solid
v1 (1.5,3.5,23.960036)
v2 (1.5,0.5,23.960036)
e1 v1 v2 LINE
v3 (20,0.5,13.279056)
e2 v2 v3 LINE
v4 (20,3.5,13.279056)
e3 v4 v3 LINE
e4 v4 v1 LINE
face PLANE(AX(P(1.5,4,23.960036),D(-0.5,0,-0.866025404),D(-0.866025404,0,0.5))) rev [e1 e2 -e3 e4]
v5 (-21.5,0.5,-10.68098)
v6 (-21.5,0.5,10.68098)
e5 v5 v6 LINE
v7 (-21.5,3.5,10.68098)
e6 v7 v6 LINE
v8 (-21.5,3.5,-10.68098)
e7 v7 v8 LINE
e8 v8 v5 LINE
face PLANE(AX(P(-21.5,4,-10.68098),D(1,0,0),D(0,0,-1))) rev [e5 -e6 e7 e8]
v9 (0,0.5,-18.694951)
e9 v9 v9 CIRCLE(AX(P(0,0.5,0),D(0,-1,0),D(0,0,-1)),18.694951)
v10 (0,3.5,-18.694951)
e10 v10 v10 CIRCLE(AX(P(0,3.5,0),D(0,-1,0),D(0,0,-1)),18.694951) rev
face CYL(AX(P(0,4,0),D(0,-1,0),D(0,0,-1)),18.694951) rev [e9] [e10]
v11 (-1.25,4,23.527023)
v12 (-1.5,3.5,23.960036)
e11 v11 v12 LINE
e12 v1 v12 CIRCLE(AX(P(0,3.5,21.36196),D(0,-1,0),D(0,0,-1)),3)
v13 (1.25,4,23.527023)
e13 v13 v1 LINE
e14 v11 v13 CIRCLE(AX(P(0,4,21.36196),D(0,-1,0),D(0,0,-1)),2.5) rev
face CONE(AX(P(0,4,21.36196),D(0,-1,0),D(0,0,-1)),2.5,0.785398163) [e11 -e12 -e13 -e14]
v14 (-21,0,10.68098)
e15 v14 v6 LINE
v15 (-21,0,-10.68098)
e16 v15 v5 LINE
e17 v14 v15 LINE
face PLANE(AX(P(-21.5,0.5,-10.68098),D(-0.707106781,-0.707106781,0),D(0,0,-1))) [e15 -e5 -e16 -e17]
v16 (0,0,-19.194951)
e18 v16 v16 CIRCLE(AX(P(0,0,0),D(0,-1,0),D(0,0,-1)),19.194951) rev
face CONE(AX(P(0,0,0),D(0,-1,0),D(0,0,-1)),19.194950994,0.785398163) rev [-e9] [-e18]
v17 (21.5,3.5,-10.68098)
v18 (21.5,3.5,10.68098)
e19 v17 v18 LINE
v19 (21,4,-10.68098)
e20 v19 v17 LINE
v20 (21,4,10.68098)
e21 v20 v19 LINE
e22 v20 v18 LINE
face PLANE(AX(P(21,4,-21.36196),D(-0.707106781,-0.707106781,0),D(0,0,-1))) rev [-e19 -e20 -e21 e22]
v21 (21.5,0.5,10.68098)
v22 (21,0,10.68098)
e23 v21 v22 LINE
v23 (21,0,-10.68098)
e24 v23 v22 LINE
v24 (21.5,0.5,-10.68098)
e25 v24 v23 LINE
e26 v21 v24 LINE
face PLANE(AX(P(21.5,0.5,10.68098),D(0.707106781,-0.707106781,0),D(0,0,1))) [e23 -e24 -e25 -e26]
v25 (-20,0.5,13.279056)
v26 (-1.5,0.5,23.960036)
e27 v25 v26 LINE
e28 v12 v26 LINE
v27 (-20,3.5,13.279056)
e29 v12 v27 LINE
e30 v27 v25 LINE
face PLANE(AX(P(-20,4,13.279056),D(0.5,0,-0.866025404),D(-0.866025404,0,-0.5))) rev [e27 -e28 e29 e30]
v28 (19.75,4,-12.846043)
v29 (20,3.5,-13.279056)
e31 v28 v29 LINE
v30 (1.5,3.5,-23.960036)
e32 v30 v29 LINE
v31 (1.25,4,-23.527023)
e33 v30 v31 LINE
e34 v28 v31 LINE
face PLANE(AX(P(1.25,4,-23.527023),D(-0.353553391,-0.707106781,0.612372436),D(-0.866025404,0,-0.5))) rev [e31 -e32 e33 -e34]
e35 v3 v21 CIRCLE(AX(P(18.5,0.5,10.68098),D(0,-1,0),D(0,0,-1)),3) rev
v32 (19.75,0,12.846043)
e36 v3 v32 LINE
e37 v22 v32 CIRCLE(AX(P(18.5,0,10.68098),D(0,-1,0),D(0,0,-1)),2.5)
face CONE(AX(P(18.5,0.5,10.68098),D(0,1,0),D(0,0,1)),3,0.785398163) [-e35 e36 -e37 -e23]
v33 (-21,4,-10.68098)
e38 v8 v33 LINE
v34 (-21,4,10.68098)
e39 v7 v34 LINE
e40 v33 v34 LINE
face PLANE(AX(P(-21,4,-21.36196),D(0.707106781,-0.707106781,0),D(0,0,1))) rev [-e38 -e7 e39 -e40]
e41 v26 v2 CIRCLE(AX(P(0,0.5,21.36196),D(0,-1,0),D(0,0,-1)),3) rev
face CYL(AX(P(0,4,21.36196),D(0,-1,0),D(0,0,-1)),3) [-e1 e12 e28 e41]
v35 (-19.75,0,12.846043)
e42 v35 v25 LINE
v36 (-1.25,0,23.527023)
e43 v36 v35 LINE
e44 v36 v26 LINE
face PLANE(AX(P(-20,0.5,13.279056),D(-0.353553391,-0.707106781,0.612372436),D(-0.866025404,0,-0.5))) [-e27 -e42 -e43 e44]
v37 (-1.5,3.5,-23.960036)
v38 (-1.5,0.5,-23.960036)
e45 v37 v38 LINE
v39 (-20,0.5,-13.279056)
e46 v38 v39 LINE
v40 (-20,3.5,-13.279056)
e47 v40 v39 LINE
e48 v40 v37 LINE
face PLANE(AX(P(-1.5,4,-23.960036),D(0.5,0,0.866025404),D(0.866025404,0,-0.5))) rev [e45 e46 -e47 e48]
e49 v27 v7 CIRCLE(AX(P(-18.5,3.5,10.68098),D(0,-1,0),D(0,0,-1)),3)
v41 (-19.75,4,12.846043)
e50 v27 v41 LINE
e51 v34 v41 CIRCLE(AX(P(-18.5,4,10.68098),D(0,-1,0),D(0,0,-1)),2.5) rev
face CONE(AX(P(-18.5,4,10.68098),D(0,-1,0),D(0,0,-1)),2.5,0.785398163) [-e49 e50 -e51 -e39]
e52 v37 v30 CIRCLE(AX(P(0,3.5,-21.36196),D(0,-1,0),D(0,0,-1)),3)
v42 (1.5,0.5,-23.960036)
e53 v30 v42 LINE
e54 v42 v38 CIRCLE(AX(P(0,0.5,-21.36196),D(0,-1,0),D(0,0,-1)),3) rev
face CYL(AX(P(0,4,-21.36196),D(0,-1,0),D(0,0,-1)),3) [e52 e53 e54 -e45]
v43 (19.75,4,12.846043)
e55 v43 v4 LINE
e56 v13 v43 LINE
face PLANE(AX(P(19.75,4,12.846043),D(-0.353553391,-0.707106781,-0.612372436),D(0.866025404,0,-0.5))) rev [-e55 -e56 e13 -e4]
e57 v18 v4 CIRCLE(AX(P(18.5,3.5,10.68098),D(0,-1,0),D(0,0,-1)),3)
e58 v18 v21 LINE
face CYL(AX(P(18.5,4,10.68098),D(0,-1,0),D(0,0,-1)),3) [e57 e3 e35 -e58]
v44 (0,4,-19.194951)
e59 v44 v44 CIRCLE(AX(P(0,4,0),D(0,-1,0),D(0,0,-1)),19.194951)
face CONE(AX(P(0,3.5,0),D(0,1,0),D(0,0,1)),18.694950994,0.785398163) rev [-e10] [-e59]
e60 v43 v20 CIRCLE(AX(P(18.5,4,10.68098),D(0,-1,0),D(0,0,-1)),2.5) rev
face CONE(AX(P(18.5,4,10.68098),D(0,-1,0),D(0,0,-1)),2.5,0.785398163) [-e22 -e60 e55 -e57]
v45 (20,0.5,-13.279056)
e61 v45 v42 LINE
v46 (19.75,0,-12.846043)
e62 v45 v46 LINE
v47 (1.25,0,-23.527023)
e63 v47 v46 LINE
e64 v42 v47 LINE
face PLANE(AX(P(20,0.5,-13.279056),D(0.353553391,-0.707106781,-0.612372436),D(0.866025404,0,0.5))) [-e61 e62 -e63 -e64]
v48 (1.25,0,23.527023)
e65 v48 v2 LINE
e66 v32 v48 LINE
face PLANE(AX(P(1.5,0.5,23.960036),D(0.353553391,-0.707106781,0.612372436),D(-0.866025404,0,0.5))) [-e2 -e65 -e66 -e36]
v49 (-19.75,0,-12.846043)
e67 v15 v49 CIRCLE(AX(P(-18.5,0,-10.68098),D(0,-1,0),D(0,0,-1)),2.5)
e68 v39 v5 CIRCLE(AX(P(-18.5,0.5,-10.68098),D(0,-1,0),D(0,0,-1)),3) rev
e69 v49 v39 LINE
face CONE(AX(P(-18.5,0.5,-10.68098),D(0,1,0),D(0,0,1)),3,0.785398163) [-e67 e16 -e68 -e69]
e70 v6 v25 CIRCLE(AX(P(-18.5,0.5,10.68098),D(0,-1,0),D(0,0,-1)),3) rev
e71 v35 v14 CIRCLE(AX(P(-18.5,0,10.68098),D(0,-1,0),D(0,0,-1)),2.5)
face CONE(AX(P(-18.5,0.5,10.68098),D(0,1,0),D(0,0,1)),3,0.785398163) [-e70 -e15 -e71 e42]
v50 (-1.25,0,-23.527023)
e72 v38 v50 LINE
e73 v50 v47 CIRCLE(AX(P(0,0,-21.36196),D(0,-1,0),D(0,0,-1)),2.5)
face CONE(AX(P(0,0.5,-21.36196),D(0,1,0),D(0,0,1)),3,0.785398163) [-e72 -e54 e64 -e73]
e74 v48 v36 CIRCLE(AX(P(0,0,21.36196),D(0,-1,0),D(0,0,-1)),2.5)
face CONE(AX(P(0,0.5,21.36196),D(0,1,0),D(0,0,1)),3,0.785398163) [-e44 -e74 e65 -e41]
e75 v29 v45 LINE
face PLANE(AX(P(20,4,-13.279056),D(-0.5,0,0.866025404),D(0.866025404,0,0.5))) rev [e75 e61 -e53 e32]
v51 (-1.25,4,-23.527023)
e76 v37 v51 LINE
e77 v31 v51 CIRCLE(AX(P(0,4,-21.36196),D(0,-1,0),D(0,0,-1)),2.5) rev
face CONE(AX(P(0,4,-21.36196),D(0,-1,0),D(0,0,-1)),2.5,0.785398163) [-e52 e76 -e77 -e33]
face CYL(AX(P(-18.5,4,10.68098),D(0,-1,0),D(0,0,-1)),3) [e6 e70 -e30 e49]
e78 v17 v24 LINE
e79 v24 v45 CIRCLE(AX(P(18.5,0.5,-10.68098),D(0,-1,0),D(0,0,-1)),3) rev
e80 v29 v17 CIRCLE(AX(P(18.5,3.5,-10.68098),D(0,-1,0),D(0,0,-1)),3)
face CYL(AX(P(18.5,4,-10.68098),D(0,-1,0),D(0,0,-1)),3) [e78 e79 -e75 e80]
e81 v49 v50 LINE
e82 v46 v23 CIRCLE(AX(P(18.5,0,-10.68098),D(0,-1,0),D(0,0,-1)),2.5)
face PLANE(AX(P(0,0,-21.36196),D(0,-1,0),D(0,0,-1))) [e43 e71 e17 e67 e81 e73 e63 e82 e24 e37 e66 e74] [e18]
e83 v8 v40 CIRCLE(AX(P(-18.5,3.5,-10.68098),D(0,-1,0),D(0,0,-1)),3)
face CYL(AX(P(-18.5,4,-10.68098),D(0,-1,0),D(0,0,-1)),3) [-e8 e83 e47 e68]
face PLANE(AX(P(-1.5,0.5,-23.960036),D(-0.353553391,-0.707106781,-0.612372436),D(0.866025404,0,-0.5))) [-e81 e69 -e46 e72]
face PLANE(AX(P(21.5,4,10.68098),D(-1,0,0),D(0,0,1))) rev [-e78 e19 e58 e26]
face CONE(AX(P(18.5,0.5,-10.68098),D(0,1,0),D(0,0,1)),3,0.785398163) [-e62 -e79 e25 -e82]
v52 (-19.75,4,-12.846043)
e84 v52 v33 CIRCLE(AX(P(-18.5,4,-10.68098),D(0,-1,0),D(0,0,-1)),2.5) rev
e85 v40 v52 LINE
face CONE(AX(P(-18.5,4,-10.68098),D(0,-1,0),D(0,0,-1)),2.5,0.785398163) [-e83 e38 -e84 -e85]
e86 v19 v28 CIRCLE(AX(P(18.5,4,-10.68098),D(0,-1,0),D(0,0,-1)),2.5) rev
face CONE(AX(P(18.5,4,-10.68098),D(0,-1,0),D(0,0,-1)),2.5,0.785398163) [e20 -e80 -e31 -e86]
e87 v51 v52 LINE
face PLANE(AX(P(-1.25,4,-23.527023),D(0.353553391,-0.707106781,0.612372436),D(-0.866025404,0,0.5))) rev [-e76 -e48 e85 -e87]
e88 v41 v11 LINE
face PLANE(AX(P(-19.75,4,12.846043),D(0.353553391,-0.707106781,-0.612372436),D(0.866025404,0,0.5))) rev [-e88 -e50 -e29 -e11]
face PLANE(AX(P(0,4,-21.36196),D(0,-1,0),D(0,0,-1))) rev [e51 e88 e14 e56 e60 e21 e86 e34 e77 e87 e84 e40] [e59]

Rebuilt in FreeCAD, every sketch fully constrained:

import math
import FreeCAD as App
import Part
import Sketcher

V = App.Vector
Q = App.Units.Quantity


def edges_at(feature, points):
    """Names of the edges that pass closest to the given points."""
    edges = feature.Shape.Edges
    near = lambda p: min(range(len(edges)), key=lambda i: edges[i].distToShape(Part.Vertex(*p))[0])
    return sorted({f"Edge{near(p) + 1}" for p in points})

doc = App.newDocument("Part")
params = doc.addObject("Spreadsheet::Sheet", "Params")
for row, (alias, value) in enumerate([
    ("sketch1_radius", "3 mm"),
    ("pad1_length", "4 mm"),
    ("chamfer_size", "0.5 mm"),
], start=1):
    params.set(f"A{row}", alias)
    params.set(f"B{row}", "=" + value)
    params.setAlias(f"B{row}", alias)

body = doc.addObject("PartDesign::Body", "Body")

# Sketch on XZ plane
sketch1 = body.newObject("Sketcher::SketchObject", "Sketch")
sketch1.AttachmentSupport = (doc.getObject("XZ_Plane"), [""])
sketch1.MapMode = "FlatFace"
sketch1.addGeometry([
    Part.LineSegment(V(-1.5, -24, 0), V(-20, -13.3, 0)),  # 0
    Part.ArcOfCircle(Part.Circle(V(-18.5, -10.7, 0), V(0, 0, 1), 3), math.radians(-180), math.radians(-120)),  # 1
    Part.LineSegment(V(-21.5, -10.7, 0), V(-21.5, 10.7, 0)),  # 2
    Part.ArcOfCircle(Part.Circle(V(-18.5, 10.7, 0), V(0, 0, 1), 3), math.radians(120), math.radians(180)),  # 3
    Part.LineSegment(V(-20, 13.3, 0), V(-1.5, 24, 0)),  # 4
    Part.ArcOfCircle(Part.Circle(V(0, 21.4, 0), V(0, 0, 1), 3), math.radians(60), math.radians(120)),  # 5
    Part.LineSegment(V(1.5, 24, 0), V(20, 13.3, 0)),  # 6
    Part.ArcOfCircle(Part.Circle(V(18.5, 10.7, 0), V(0, 0, 1), 3), math.radians(0), math.radians(60)),  # 7
    Part.LineSegment(V(21.5, 10.7, 0), V(21.5, -10.7, 0)),  # 8
    Part.ArcOfCircle(Part.Circle(V(18.5, -10.7, 0), V(0, 0, 1), 3), math.radians(-60), math.radians(0)),  # 9
    Part.LineSegment(V(20, -13.3, 0), V(1.5, -24, 0)),  # 10
    Part.ArcOfCircle(Part.Circle(V(0, -21.4, 0), V(0, 0, 1), 3), math.radians(-120), math.radians(-60)),  # 11
    Part.Circle(V(0, 0, 0), V(0, 0, 1), 18.7),  # 12
], False)
sketch1.addConstraint([
    Sketcher.Constraint("Tangent", 0, 2, 1, 2),
    Sketcher.Constraint("Tangent", 1, 1, 2, 1),
    Sketcher.Constraint("Tangent", 2, 2, 3, 2),
    Sketcher.Constraint("Tangent", 3, 1, 4, 1),
    Sketcher.Constraint("Tangent", 4, 2, 5, 2),
    Sketcher.Constraint("Tangent", 5, 1, 6, 1),
    Sketcher.Constraint("Tangent", 6, 2, 7, 2),
    Sketcher.Constraint("Tangent", 7, 1, 8, 1),
    Sketcher.Constraint("Tangent", 8, 2, 9, 2),
    Sketcher.Constraint("Tangent", 9, 1, 10, 1),
    Sketcher.Constraint("Tangent", 10, 2, 11, 2),
    Sketcher.Constraint("Tangent", 11, 1, 0, 1),
    Sketcher.Constraint("Vertical", 2),
    Sketcher.Constraint("Vertical", 8),
    Sketcher.Constraint("Coincident", 12, 3, -1, 1),
    Sketcher.Constraint("Equal", 1, 3),
    Sketcher.Constraint("Equal", 3, 5),
    Sketcher.Constraint("Equal", 5, 7),
    Sketcher.Constraint("Equal", 7, 9),
    Sketcher.Constraint("Equal", 9, 11),
    Sketcher.Constraint("Symmetric", 1, 3, 7, 3, -1, 1),
    Sketcher.Constraint("Symmetric", 5, 3, 11, 3, -1, 1),
    Sketcher.Constraint("Symmetric", 4, 2, 5, 1, -2),
    Sketcher.Constraint("Parallel", 4, 10),
    Sketcher.Constraint("Radius", 1, 3.0),
    Sketcher.Constraint("Angle", 0, Q("150 deg")),
    Sketcher.Constraint("DistanceX", 0, 2, -1, 1, 20.0),
    Sketcher.Constraint("Diameter", 12, 37.389902),
    Sketcher.Constraint("DistanceY", 2, 1, 2, 2, 21.36196),
])
sketch1.setExpression("Constraints[24]", "Params.sketch1_radius")
pad1 = body.newObject("PartDesign::Pad", "Pad")
pad1.Profile = sketch1
pad1.setExpression("Length", "Params.pad1_length")
pad1.Reversed = True
doc.recompute()

chamfer = body.newObject("PartDesign::Chamfer", "Chamfer")
chamfer.Base = (pad1, edges_at(pad1, [
    (-21.098, 4, -12.181),
    (10.75, 0, -18.62),
    (21.098, 0, -12.181),
    (21.5, 0, 0),
    (21.098, 0, 12.181),
    (10.75, 0, 18.62),
    (0, 0, 24.362),
    (-21.5, 4, 0),
    (-10.75, 0, 18.62),
    (-21.098, 0, 12.181),
    (-21.5, 0, 0),
    (-21.098, 0, -12.181),
    (-10.75, 0, -18.62),
    (0, 0, -24.362),
    (-21.098, 4, 12.181),
    (-10.75, 4, 18.62),
    (0, 4, 24.362),
    (10.75, 4, 18.62),
    (21.098, 4, 12.181),
    (0, 0, -18.695),
    (0, 4, -18.695),
    (21.5, 4, 0),
    (21.098, 4, -12.181),
    (10.75, 4, -18.62),
    (0, 4, -24.362),
    (-10.75, 4, -18.62),
]))
chamfer.setExpression("Size", "Params.chamfer_size")

doc.recompute()
